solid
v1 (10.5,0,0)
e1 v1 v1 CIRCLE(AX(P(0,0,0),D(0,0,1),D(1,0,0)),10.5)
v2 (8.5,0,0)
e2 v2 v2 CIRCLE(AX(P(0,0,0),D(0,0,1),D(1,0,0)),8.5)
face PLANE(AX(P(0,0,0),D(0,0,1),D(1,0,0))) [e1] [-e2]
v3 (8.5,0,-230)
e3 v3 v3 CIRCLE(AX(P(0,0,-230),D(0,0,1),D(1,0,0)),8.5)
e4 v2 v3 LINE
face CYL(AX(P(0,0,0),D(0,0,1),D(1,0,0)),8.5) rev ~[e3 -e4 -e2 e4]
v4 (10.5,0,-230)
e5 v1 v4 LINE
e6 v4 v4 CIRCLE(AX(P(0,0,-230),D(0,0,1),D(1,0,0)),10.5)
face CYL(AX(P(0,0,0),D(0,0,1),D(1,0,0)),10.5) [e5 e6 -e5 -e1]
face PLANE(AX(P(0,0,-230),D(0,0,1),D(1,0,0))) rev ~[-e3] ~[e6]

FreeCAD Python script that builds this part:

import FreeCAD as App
import Part
import Sketcher
from FreeCAD import Vector

doc = App.newDocument("Part")
params = doc.addObject("Spreadsheet::Sheet", "Params")
for row, (alias, value) in enumerate([
    ("sketch1_diameter", "21 mm"),
    ("sketch1_diameter2", "17 mm"),
    ("pad1_length", "230 mm"),
], start=1):
    params.set(f"A{row}", alias)
    params.set(f"B{row}", "=" + value)
    params.setAlias(f"B{row}", alias)

body = doc.addObject("PartDesign::Body", "Body")

sketch1 = body.newObject("Sketcher::SketchObject", "Sketch")
sketch1.AttachmentSupport = (doc.getObject("XY_Plane"), [""])
sketch1.MapMode = "FlatFace"
sketch1.addGeometry(Part.Circle(Vector(0, 0, 0), Vector(0, 0, 1), 10), False)
sketch1.addGeometry(Part.Circle(Vector(0, 0, 0), Vector(0, 0, 1), 8), False)
sketch1.addConstraint(Sketcher.Constraint("Coincident", 0, 3, -1, 1))
sketch1.addConstraint(Sketcher.Constraint("Coincident", 1, 3, -1, 1))
sketch1.addConstraint(Sketcher.Constraint("Diameter", 0, 21.0))
sketch1.addConstraint(Sketcher.Constraint("Diameter", 1, 17.0))
sketch1.setExpression("Constraints[2]", "Params.sketch1_diameter")
sketch1.setExpression("Constraints[3]", "Params.sketch1_diameter2")
pad1 = body.newObject("PartDesign::Pad", "Pad")
pad1.Profile = sketch1
pad1.setExpression("Length", "Params.pad1_length")
pad1.Reversed = True

doc.recompute()
